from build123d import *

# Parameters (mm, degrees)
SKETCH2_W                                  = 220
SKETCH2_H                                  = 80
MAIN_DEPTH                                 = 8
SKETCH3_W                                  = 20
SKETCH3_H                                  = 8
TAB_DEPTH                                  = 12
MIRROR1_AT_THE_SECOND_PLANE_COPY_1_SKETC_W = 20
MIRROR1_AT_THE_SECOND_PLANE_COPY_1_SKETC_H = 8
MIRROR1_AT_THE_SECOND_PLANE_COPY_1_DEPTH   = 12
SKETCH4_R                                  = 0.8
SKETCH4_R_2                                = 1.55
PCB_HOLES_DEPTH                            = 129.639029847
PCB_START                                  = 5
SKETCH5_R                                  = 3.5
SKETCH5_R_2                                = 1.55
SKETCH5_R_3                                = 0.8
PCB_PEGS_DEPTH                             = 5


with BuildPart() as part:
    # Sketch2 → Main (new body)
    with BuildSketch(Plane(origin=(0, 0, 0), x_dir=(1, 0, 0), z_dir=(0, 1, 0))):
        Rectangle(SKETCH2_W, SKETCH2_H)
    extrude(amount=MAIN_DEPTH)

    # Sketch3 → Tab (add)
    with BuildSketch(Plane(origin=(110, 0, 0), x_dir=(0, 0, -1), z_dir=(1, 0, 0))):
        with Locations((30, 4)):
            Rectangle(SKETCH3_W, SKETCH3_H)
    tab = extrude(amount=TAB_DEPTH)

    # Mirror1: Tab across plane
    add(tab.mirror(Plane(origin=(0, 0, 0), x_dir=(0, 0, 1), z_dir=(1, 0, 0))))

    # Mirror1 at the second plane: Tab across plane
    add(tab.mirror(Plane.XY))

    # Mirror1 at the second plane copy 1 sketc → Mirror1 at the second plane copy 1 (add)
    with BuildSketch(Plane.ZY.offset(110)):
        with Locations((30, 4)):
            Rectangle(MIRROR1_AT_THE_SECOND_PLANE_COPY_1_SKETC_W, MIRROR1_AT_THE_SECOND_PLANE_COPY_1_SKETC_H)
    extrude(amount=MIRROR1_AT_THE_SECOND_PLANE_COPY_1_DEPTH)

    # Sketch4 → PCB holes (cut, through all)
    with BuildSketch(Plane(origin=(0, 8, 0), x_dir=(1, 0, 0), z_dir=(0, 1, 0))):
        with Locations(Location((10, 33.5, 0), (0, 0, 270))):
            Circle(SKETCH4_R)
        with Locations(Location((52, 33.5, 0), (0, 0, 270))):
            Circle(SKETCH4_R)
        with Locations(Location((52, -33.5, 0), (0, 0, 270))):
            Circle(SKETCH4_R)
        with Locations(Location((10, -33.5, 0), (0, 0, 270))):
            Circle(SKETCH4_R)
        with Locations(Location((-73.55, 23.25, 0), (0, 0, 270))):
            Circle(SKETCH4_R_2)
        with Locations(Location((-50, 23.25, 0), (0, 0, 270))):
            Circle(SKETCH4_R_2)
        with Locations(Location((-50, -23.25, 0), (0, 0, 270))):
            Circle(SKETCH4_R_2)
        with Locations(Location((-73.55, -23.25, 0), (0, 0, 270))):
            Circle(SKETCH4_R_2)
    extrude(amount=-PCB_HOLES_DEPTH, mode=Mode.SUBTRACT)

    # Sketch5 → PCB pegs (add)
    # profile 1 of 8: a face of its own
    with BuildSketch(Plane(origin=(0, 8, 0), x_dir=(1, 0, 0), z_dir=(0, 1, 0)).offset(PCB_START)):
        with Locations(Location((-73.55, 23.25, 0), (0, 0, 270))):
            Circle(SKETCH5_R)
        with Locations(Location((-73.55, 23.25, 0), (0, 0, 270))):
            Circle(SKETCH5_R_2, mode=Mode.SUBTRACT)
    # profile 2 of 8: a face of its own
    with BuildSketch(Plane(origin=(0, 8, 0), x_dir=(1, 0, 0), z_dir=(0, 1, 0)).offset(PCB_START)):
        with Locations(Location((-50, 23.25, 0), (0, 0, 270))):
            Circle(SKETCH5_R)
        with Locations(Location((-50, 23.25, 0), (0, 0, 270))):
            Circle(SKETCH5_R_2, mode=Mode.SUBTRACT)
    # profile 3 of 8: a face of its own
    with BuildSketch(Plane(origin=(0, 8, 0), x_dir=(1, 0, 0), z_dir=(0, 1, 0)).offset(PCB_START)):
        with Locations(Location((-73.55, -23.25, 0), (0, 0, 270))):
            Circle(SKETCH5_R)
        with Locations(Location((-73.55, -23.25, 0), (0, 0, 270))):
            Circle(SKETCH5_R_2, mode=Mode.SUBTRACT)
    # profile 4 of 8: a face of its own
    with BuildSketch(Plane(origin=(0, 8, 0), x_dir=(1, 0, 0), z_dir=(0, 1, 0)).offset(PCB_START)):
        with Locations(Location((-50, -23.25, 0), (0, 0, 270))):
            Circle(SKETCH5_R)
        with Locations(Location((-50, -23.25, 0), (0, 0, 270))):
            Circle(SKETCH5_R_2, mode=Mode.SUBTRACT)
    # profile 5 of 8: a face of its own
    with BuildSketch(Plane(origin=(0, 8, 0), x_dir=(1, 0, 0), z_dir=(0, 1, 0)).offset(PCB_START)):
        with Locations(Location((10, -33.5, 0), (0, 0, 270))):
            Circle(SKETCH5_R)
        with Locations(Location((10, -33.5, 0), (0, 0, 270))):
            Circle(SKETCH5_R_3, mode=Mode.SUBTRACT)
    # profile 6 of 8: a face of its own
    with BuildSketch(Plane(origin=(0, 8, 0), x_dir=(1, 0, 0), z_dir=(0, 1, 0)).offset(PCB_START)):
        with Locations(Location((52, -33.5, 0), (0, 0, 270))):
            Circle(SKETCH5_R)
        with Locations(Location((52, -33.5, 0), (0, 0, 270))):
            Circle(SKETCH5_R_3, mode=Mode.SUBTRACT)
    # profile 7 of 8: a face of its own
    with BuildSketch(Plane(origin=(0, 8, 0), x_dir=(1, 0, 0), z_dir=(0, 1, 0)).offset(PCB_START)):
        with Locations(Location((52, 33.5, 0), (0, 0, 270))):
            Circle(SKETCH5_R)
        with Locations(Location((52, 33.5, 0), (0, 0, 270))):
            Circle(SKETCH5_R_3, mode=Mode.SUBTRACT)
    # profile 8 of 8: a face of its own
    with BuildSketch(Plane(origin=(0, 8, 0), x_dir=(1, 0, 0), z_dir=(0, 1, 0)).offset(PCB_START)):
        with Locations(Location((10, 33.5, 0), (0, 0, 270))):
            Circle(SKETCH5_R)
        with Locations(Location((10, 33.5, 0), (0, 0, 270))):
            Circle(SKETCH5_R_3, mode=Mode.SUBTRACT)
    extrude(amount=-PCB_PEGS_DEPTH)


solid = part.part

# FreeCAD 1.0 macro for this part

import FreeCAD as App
import Part
import Sketcher


def add_polygon(sketch, points):
    """Adds a closed chain of lines whose ends are joined by coincident constraints."""
    first, n = sketch.GeometryCount, len(points)
    for a, b in zip(points, points[1:] + points[:1]):
        sketch.addGeometry(Part.LineSegment(App.Vector(*a, 0), App.Vector(*b, 0)), False)
    for i in range(n):
        sketch.addConstraint(Sketcher.Constraint("Coincident", first + i, 2, first + (i + 1) % n, 1))

doc = App.newDocument("Part")
body = doc.addObject("PartDesign::Body", "Body")

# Sketch on XZ plane
sketch1 = doc.addObject("Sketcher::SketchObject", "Sketch")
body.addObject(sketch1)
sketch1.AttachmentSupport = (doc.XZ_Plane, [""])
sketch1.MapMode = "FlatFace"
add_polygon(sketch1, [(-110, -40), (-110, 40), (110, 40), (110, -40)])  # lines 0-3
sketch1.addConstraint([
    Sketcher.Constraint("Vertical", 0),
    Sketcher.Constraint("Horizontal", 1),
    Sketcher.Constraint("Vertical", 2),
    Sketcher.Constraint("Horizontal", 3),
    Sketcher.Constraint("Symmetric", 0, 2, 2, 2, -1, 1),
    Sketcher.Constraint("DistanceX", 1, 1, 1, 2, 220.0),
    Sketcher.Constraint("DistanceY", 0, 1, 0, 2, 80.0),
])
pad1 = doc.addObject("PartDesign::Pad", "Pad")
body.addObject(pad1)
pad1.Profile = sketch1
pad1.Length = 8
pad1.Reversed = True

# Sketch on YZ plane
sketch2 = doc.addObject("Sketcher::SketchObject", "Sketch001")
body.addObject(sketch2)
sketch2.AttachmentSupport = (doc.YZ_Plane, [""])
sketch2.MapMode = "FlatFace"
sketch2.AttachmentOffset = App.Placement(App.Vector(0, 0, 110), App.Rotation())
add_polygon(sketch2, [(8, -20), (0, -20), (0, -40), (8, -40)])  # lines 0-3
sketch2.addConstraint([
    Sketcher.Constraint("Horizontal", 0),
    Sketcher.Constraint("Vertical", 1),
    Sketcher.Constraint("Horizontal", 2),
    Sketcher.Constraint("Vertical", 3),
    Sketcher.Constraint("PointOnObject", 0, 2, -2),
    Sketcher.Constraint("DistanceX", 0, 2, 0, 1, 8.0),
    Sketcher.Constraint("DistanceY", 1, 2, 1, 1, 20.0),
    Sketcher.Constraint("DistanceY", 0, 2, -1, 1, 20.0),
])
pad2 = doc.addObject("PartDesign::Pad", "Pad001")
body.addObject(pad2)
pad2.Profile = sketch2
pad2.Length = 12
doc.recompute()

mirrored = doc.addObject("PartDesign::Mirrored", "Mirrored")
body.addObject(mirrored)
mirrored.Originals = [pad2]
mirrored.MirrorPlane = (doc.YZ_Plane, [""])
body.Tip = mirrored
doc.recompute()

mirrored2 = doc.addObject("PartDesign::Mirrored", "Mirrored001")
body.addObject(mirrored2)
mirrored2.Originals = [pad2]
mirrored2.MirrorPlane = (doc.XY_Plane, [""])
body.Tip = mirrored2

# Sketch on YZ plane
sketch3 = doc.addObject("Sketcher::SketchObject", "Sketch002")
body.addObject(sketch3)
sketch3.AttachmentSupport = (doc.YZ_Plane, [""])
sketch3.MapMode = "FlatFace"
sketch3.AttachmentOffset = App.Placement(App.Vector(0, 0, -110), App.Rotation())
add_polygon(sketch3, [(8, 20), (0, 20), (0, 40), (8, 40)])  # lines 0-3
sketch3.addConstraint([
    Sketcher.Constraint("Horizontal", 0),
    Sketcher.Constraint("Vertical", 1),
    Sketcher.Constraint("Horizontal", 2),
    Sketcher.Constraint("Vertical", 3),
    Sketcher.Constraint("PointOnObject", 0, 2, -2),
    Sketcher.Constraint("DistanceX", 0, 2, 0, 1, 8.0),
    Sketcher.Constraint("DistanceY", 1, 1, 1, 2, 20.0),
    Sketcher.Constraint("DistanceY", -1, 1, 0, 2, 20.0),
])
pad3 = doc.addObject("PartDesign::Pad", "Pad002")
body.addObject(pad3)
pad3.Profile = sketch3
pad3.Length = 12
pad3.Reversed = True

# Sketch on XZ plane
sketch4 = doc.addObject("Sketcher::SketchObject", "Sketch003")
body.addObject(sketch4)
sketch4.AttachmentSupport = (doc.XZ_Plane, [""])
sketch4.MapMode = "FlatFace"
sketch4.AttachmentOffset = App.Placement(App.Vector(0, 0, -8), App.Rotation())
sketch4.addGeometry([
    Part.Circle(App.Vector(10, -33.5, 0), App.Vector(0, 0, 1), 0.8),  # 0
    Part.Circle(App.Vector(52, -33.5, 0), App.Vector(0, 0, 1), 0.8),  # 1
    Part.Circle(App.Vector(52, 33.5, 0), App.Vector(0, 0, 1), 0.8),  # 2
    Part.Circle(App.Vector(10, 33.5, 0), App.Vector(0, 0, 1), 0.8),  # 3
    Part.Circle(App.Vector(-73.5, -23.2, 0), App.Vector(0, 0, 1), 1.6),  # 4
    Part.Circle(App.Vector(-50, -23.2, 0), App.Vector(0, 0, 1), 1.6),  # 5
    Part.Circle(App.Vector(-50, 23.2, 0), App.Vector(0, 0, 1), 1.6),  # 6
    Part.Circle(App.Vector(-73.5, 23.2, 0), App.Vector(0, 0, 1), 1.6),  # 7
], False)
sketch4.addConstraint([
    Sketcher.Constraint("Equal", 0, 1),
    Sketcher.Constraint("Equal", 1, 2),
    Sketcher.Constraint("Equal", 2, 3),
    Sketcher.Constraint("Equal", 4, 5),
    Sketcher.Constraint("Equal", 5, 6),
    Sketcher.Constraint("Equal", 6, 7),
    Sketcher.Constraint("Symmetric", 1, 3, 2, 3, -1),
    Sketcher.Constraint("Symmetric", 0, 3, 3, 3, -1),
    Sketcher.Constraint("Symmetric", 5, 3, 6, 3, -1),
    Sketcher.Constraint("Symmetric", 4, 3, 7, 3, -1),
    Sketcher.Constraint("Horizontal", 0, 3, 1, 3),
    Sketcher.Constraint("Horizontal", 4, 3, 5, 3),
    Sketcher.Constraint("Diameter", 0, 1.6),
    Sketcher.Constraint("Diameter", 4, 3.1),
    Sketcher.Constraint("DistanceX", -1, 1, 0, 3, 10.0),
    Sketcher.Constraint("DistanceX", -1, 1, 1, 3, 52.0),
    Sketcher.Constraint("DistanceX", 5, 3, -1, 1, 50.0),
    Sketcher.Constraint("DistanceY", 1, 3, 2, 3, 67.0),
    Sketcher.Constraint("DistanceY", 5, 3, 6, 3, 46.5),
    Sketcher.Constraint("DistanceX", 4, 3, -1, 1, 73.55),
])
pocket1 = doc.addObject("PartDesign::Pocket", "Pocket")
body.addObject(pocket1)
pocket1.Profile = sketch4
pocket1.Type = "ThroughAll"
pocket1.Reversed = True

# Sketch on XZ plane
sketch5 = doc.addObject("Sketcher::SketchObject", "Sketch004")
body.addObject(sketch5)
sketch5.AttachmentSupport = (doc.XZ_Plane, [""])
sketch5.MapMode = "FlatFace"
sketch5.AttachmentOffset = App.Placement(App.Vector(0, 0, -13), App.Rotation())
sketch5.addGeometry([
    Part.Circle(App.Vector(-73.5, -23.2, 0), App.Vector(0, 0, 1), 3.5),  # 0
    Part.Circle(App.Vector(-73.5, -23.2, 0), App.Vector(0, 0, 1), 1.6),  # 1
    Part.Circle(App.Vector(-50, -23.2, 0), App.Vector(0, 0, 1), 3.5),  # 2
    Part.Circle(App.Vector(-50, -23.2, 0), App.Vector(0, 0, 1), 1.6),  # 3
    Part.Circle(App.Vector(-73.5, 23.2, 0), App.Vector(0, 0, 1), 3.5),  # 4
    Part.Circle(App.Vector(-73.5, 23.2, 0), App.Vector(0, 0, 1), 1.6),  # 5
    Part.Circle(App.Vector(-50, 23.2, 0), App.Vector(0, 0, 1), 3.5),  # 6
    Part.Circle(App.Vector(-50, 23.2, 0), App.Vector(0, 0, 1), 1.6),  # 7
    Part.Circle(App.Vector(10, 33.5, 0), App.Vector(0, 0, 1), 3.5),  # 8
    Part.Circle(App.Vector(10, 33.5, 0), App.Vector(0, 0, 1), 0.8),  # 9
    Part.Circle(App.Vector(52, 33.5, 0), App.Vector(0, 0, 1), 3.5),  # 10
    Part.Circle(App.Vector(52, 33.5, 0), App.Vector(0, 0, 1), 0.8),  # 11
    Part.Circle(App.Vector(52, -33.5, 0), App.Vector(0, 0, 1), 3.5),  # 12
    Part.Circle(App.Vector(52, -33.5, 0), App.Vector(0, 0, 1), 0.8),  # 13
    Part.Circle(App.Vector(10, -33.5, 0), App.Vector(0, 0, 1), 3.5),  # 14
    Part.Circle(App.Vector(10, -33.5, 0), App.Vector(0, 0, 1), 0.8),  # 15
], False)
sketch5.addConstraint([
    Sketcher.Constraint("Coincident", 1, 3, 0, 3),
    Sketcher.Constraint("Coincident", 3, 3, 2, 3),
    Sketcher.Constraint("Coincident", 5, 3, 4, 3),
    Sketcher.Constraint("Coincident", 7, 3, 6, 3),
    Sketcher.Constraint("Coincident", 9, 3, 8, 3),
    Sketcher.Constraint("Coincident", 11, 3, 10, 3),
    Sketcher.Constraint("Coincident", 13, 3, 12, 3),
    Sketcher.Constraint("Coincident", 15, 3, 14, 3),
    Sketcher.Constraint("Equal", 0, 2),
    Sketcher.Constraint("Equal", 1, 3),
    Sketcher.Constraint("Equal", 2, 4),
    Sketcher.Constraint("Equal", 3, 5),
    Sketcher.Constraint("Equal", 4, 6),
    Sketcher.Constraint("Equal", 5, 7),
    Sketcher.Constraint("Equal", 6, 8),
    Sketcher.Constraint("Equal", 8, 10),
    Sketcher.Constraint("Equal", 9, 11),
    Sketcher.Constraint("Equal", 10, 12),
    Sketcher.Constraint("Equal", 11, 13),
    Sketcher.Constraint("Equal", 12, 14),
    Sketcher.Constraint("Equal", 13, 15),
    Sketcher.Constraint("Symmetric", 0, 3, 4, 3, -1),
    Sketcher.Constraint("Symmetric", 2, 3, 6, 3, -1),
    Sketcher.Constraint("Symmetric", 10, 3, 12, 3, -1),
    Sketcher.Constraint("Symmetric", 8, 3, 14, 3, -1),
    Sketcher.Constraint("Horizontal", 1, 3, 2, 3),
    Sketcher.Constraint("Horizontal", 9, 3, 10, 3),
    Sketcher.Constraint("Diameter", 0, 7.0),
    Sketcher.Constraint("Diameter", 1, 3.1),
    Sketcher.Constraint("Diameter", 9, 1.6),
    Sketcher.Constraint("DistanceX", 2, 3, -1, 1, 50.0),
    Sketcher.Constraint("DistanceX", -1, 1, 8, 3, 10.0),
    Sketcher.Constraint("DistanceX", -1, 1, 10, 3, 52.0),
    Sketcher.Constraint("DistanceY", 12, 3, 10, 3, 67.0),
    Sketcher.Constraint("DistanceY", 0, 3, 4, 3, 46.5),
    Sketcher.Constraint("DistanceX", 0, 3, -1, 1, 73.55),
])
pad4 = doc.addObject("PartDesign::Pad", "Pad003")
body.addObject(pad4)
pad4.Profile = sketch5
pad4.Length = 5

doc.recompute()
